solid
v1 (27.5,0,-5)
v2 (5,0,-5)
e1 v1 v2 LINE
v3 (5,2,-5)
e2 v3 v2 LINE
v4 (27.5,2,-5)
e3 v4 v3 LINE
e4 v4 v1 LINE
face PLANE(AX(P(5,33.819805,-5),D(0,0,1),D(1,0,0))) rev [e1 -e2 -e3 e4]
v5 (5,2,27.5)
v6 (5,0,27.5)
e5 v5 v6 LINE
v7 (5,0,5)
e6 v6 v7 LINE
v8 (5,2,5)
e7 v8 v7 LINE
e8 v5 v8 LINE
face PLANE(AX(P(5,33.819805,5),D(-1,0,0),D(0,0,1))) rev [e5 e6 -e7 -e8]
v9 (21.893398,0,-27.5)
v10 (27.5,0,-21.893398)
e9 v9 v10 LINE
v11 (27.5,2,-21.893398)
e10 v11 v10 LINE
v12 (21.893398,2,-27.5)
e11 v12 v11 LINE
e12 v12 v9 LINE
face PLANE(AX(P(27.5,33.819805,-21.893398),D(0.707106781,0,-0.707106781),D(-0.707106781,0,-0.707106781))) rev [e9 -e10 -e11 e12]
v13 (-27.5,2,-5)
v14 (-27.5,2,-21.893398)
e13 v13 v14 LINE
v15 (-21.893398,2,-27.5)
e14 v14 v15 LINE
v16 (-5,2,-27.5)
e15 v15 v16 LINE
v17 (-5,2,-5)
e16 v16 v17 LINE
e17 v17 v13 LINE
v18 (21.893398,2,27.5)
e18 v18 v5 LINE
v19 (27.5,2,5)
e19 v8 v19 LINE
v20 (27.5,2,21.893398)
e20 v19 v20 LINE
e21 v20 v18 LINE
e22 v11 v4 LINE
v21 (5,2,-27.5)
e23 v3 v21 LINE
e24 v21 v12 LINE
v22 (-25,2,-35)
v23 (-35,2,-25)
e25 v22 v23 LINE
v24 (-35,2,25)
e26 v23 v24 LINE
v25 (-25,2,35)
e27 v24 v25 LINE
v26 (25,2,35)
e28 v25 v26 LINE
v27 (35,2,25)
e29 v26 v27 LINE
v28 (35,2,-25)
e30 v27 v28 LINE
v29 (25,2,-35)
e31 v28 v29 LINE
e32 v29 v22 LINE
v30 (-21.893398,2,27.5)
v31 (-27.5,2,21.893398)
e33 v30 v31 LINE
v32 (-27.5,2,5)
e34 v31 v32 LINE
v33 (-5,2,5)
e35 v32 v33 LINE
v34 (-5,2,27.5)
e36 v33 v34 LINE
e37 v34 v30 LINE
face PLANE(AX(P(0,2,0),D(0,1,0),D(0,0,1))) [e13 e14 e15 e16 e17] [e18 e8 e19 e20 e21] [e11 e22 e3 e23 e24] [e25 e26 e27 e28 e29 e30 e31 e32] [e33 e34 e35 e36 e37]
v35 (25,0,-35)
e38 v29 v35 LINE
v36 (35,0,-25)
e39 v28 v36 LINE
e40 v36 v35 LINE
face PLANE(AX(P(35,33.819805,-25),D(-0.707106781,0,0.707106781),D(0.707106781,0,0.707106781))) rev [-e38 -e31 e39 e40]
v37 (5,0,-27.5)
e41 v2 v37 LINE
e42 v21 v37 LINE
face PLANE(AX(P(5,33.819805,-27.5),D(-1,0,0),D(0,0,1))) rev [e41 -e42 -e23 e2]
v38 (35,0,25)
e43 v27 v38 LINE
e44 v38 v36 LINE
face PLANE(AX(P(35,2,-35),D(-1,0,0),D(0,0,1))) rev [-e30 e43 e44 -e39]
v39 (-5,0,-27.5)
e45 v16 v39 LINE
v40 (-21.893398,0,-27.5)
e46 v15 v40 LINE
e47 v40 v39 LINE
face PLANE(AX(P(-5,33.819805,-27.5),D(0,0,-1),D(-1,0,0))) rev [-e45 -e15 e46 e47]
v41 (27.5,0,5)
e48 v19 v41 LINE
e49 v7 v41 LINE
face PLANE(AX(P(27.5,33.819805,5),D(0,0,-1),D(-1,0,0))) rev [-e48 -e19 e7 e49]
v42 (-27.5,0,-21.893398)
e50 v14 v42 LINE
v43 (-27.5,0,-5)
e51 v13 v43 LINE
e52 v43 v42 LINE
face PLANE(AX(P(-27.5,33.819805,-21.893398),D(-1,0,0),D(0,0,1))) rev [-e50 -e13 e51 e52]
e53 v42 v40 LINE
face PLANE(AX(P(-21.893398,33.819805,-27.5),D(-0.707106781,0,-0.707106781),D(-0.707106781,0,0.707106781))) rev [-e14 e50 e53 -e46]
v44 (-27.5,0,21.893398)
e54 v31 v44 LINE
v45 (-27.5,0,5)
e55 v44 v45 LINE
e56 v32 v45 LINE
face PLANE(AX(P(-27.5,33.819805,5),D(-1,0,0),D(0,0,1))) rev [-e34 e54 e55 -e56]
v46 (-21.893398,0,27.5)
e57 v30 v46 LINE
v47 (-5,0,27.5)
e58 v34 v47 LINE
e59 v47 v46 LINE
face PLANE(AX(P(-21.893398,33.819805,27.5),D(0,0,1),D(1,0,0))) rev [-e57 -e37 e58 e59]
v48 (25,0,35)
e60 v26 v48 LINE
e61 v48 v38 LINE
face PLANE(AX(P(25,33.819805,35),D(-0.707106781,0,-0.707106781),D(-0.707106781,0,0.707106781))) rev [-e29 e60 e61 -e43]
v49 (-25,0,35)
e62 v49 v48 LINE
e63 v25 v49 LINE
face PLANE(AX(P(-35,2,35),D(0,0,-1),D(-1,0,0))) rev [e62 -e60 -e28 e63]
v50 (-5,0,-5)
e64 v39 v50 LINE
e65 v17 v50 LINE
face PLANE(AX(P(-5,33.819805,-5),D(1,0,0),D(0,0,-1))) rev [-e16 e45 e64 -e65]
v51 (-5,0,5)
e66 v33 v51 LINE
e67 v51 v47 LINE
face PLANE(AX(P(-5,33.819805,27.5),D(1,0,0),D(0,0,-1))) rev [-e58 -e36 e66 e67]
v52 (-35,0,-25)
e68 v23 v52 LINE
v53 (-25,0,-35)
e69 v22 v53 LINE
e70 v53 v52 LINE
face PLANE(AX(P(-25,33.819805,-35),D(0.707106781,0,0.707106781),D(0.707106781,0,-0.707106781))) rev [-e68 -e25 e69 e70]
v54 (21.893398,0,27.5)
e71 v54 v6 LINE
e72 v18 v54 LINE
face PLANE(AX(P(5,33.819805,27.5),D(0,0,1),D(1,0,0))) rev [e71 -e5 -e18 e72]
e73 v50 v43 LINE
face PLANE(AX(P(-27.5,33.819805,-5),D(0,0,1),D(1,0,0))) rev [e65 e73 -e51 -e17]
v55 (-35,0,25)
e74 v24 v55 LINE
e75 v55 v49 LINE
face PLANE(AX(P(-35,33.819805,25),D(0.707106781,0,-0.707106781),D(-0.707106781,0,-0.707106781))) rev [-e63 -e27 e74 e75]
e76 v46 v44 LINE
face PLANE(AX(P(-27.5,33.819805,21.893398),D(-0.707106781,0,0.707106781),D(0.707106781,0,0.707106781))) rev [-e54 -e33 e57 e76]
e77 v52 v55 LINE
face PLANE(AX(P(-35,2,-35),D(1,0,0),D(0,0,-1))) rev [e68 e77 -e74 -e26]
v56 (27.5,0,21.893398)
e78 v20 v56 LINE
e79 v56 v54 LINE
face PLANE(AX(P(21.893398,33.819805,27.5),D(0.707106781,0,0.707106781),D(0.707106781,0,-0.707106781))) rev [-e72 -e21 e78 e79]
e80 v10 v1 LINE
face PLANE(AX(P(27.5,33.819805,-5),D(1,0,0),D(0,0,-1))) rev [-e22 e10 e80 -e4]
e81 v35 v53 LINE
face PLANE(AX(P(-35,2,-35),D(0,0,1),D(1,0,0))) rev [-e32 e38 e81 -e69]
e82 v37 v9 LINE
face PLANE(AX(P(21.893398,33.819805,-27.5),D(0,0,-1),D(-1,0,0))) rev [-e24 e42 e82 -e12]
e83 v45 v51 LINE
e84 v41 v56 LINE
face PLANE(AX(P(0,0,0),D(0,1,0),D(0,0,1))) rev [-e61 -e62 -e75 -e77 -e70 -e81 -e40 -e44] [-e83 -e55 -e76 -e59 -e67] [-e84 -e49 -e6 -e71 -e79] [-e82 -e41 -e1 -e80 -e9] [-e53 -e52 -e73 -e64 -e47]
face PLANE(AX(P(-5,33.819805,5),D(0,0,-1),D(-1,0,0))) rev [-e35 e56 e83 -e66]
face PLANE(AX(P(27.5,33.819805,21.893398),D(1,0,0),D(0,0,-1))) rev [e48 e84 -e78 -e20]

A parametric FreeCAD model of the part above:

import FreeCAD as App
import Part
import Sketcher

V = App.Vector


def add_polygon(sketch, points):
    """Adds a closed chain of lines whose ends are joined by coincident constraints."""
    first, n = sketch.GeometryCount, len(points)
    for a, b in zip(points, points[1:] + points[:1]):
        sketch.addGeometry(Part.LineSegment(App.Vector(*a, 0), App.Vector(*b, 0)), False)
    for i in range(n):
        sketch.addConstraint(Sketcher.Constraint("Coincident", first + i, 2, first + (i + 1) % n, 1))

doc = App.newDocument("Part")
body = doc.addObject("PartDesign::Body", "Body")

# Sketch on XZ plane
sketch1 = body.newObject("Sketcher::SketchObject", "Sketch")
sketch1.AttachmentSupport = (doc.getObject("XZ_Plane"), [""])
sketch1.MapMode = "FlatFace"
add_polygon(sketch1, [(-35, -35), (-35, 35), (35, 35), (35, -35)])  # lines 0-3
sketch1.addConstraint([
    Sketcher.Constraint("Vertical", 0),
    Sketcher.Constraint("Horizontal", 1),
    Sketcher.Constraint("Vertical", 2),
    Sketcher.Constraint("Horizontal", 3),
    Sketcher.Constraint("Symmetric", 0, 2, 2, 2, -1, 1),
    Sketcher.Constraint("Equal", 3, 0),
    Sketcher.Constraint("DistanceX", 1, 1, 1, 2, 70.0),
])
pad1 = body.newObject("PartDesign::Pad", "Pad")
pad1.Profile = sketch1
pad1.Length = 2
pad1.Reversed = True

# Sketch on XZ plane
sketch2 = body.newObject("Sketcher::SketchObject", "Sketch001")
sketch2.AttachmentSupport = (doc.getObject("XZ_Plane"), [""])
sketch2.MapMode = "FlatFace"
add_polygon(sketch2, [(25, 35), (35, 25), (35, 35)])  # lines 0-2
add_polygon(sketch2, [(27.5, 21.893398), (21.893398, 27.5), (5, 27.5), (5, 5), (27.5, 5)])  # lines 3-7
sketch2.addConstraint([
    Sketcher.Constraint("Vertical", 1),
    Sketcher.Constraint("Horizontal", 2),
    Sketcher.Constraint("Horizontal", 4),
    Sketcher.Constraint("Vertical", 5),
    Sketcher.Constraint("Horizontal", 6),
    Sketcher.Constraint("Vertical", 7),
    Sketcher.Constraint("Parallel", 0, 3),
    Sketcher.Constraint("Equal", 2, 1),
    Sketcher.Constraint("Equal", 6, 5),
    Sketcher.Constraint("DistanceX", 2, 2, 2, 1, 10.0),
    Sketcher.Constraint("DistanceX", 6, 1, 6, 2, 22.5),
    Sketcher.Constraint("DistanceX", -1, 1, 0, 2, 35.0),
    Sketcher.Constraint("DistanceY", -1, 1, 0, 2, 25.0),
    Sketcher.Constraint("DistanceX", -1, 1, 4, 2, 5.0),
    Sketcher.Constraint("DistanceY", -1, 1, 5, 2, 5.0),
    Sketcher.Constraint("DistanceX", 4, 2, 4, 1, 16.893398),
])
pocket1 = body.newObject("PartDesign::Pocket", "Pocket")
pocket1.Profile = sketch2
pocket1.Length = 2
doc.recompute()

polarpattern = body.newObject("PartDesign::PolarPattern", "PolarPattern")
polarpattern.Originals = [pocket1]
polarpattern.Axis = (doc.getObject("Y_Axis"), [""])
polarpattern.Angle = 360
polarpattern.Occurrences = 4
body.Tip = polarpattern

doc.recompute()
